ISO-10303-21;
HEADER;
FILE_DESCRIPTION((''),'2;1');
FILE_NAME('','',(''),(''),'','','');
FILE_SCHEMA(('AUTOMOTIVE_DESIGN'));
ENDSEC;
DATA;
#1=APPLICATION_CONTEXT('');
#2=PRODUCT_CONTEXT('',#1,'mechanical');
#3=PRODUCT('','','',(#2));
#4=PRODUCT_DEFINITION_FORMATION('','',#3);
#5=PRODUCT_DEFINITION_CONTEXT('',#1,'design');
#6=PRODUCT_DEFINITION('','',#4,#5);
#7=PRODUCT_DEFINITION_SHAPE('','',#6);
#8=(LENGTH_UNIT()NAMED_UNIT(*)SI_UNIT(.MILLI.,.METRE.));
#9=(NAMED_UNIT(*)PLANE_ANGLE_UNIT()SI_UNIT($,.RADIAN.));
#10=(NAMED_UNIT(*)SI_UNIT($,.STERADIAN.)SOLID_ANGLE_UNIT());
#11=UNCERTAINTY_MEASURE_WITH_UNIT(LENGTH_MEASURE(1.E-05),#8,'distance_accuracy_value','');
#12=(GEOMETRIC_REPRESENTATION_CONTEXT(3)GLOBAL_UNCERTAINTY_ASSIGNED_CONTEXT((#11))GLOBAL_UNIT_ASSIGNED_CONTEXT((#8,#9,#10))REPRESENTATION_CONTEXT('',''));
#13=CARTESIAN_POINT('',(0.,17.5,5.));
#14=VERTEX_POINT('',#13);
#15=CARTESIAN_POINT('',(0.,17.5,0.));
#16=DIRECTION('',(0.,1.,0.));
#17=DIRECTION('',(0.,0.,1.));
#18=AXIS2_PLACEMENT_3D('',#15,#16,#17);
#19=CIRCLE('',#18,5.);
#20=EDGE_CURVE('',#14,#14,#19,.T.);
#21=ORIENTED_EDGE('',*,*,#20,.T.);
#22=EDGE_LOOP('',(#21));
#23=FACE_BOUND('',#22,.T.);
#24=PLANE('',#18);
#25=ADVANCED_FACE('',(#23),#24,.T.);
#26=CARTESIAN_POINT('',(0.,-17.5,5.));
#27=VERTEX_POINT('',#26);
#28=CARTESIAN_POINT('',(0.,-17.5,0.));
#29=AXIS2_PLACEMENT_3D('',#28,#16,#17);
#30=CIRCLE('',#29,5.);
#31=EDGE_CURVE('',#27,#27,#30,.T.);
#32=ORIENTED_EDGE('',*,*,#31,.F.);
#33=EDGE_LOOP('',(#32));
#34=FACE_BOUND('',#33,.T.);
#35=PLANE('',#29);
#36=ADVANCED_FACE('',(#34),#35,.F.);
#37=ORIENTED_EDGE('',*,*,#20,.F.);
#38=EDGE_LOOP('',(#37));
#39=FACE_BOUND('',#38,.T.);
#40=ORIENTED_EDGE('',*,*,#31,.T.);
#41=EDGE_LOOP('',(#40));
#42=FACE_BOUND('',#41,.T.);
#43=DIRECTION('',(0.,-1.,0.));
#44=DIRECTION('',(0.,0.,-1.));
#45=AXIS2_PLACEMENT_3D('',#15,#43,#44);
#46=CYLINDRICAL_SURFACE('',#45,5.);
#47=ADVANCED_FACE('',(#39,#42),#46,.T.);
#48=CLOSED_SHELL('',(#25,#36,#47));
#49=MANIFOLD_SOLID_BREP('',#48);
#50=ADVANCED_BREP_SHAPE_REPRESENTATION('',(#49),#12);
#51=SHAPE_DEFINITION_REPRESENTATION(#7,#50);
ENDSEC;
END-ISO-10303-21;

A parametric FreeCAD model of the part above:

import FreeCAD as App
import Part
import Sketcher

V = App.Vector

doc = App.newDocument("Part")
body = doc.addObject("PartDesign::Body", "Body")

sketch1 = doc.addObject("Sketcher::SketchObject", "Sketch")
body.addObject(sketch1)
sketch1.AttachmentSupport = (doc.XZ_Plane, [""])
sketch1.MapMode = "FlatFace"
sketch1.addGeometry(Part.Circle(V(0, 0, 0), V(0, 0, 1), 5), False)
sketch1.addConstraint([
    Sketcher.Constraint("Coincident", 0, 3, -1, 1),
    Sketcher.Constraint("Diameter", 0, 10.0),
])
pad1 = doc.addObject("PartDesign::Pad", "Pad")
body.addObject(pad1)
pad1.Profile = sketch1
pad1.Length = 35
pad1.Midplane = True

doc.recompute()
